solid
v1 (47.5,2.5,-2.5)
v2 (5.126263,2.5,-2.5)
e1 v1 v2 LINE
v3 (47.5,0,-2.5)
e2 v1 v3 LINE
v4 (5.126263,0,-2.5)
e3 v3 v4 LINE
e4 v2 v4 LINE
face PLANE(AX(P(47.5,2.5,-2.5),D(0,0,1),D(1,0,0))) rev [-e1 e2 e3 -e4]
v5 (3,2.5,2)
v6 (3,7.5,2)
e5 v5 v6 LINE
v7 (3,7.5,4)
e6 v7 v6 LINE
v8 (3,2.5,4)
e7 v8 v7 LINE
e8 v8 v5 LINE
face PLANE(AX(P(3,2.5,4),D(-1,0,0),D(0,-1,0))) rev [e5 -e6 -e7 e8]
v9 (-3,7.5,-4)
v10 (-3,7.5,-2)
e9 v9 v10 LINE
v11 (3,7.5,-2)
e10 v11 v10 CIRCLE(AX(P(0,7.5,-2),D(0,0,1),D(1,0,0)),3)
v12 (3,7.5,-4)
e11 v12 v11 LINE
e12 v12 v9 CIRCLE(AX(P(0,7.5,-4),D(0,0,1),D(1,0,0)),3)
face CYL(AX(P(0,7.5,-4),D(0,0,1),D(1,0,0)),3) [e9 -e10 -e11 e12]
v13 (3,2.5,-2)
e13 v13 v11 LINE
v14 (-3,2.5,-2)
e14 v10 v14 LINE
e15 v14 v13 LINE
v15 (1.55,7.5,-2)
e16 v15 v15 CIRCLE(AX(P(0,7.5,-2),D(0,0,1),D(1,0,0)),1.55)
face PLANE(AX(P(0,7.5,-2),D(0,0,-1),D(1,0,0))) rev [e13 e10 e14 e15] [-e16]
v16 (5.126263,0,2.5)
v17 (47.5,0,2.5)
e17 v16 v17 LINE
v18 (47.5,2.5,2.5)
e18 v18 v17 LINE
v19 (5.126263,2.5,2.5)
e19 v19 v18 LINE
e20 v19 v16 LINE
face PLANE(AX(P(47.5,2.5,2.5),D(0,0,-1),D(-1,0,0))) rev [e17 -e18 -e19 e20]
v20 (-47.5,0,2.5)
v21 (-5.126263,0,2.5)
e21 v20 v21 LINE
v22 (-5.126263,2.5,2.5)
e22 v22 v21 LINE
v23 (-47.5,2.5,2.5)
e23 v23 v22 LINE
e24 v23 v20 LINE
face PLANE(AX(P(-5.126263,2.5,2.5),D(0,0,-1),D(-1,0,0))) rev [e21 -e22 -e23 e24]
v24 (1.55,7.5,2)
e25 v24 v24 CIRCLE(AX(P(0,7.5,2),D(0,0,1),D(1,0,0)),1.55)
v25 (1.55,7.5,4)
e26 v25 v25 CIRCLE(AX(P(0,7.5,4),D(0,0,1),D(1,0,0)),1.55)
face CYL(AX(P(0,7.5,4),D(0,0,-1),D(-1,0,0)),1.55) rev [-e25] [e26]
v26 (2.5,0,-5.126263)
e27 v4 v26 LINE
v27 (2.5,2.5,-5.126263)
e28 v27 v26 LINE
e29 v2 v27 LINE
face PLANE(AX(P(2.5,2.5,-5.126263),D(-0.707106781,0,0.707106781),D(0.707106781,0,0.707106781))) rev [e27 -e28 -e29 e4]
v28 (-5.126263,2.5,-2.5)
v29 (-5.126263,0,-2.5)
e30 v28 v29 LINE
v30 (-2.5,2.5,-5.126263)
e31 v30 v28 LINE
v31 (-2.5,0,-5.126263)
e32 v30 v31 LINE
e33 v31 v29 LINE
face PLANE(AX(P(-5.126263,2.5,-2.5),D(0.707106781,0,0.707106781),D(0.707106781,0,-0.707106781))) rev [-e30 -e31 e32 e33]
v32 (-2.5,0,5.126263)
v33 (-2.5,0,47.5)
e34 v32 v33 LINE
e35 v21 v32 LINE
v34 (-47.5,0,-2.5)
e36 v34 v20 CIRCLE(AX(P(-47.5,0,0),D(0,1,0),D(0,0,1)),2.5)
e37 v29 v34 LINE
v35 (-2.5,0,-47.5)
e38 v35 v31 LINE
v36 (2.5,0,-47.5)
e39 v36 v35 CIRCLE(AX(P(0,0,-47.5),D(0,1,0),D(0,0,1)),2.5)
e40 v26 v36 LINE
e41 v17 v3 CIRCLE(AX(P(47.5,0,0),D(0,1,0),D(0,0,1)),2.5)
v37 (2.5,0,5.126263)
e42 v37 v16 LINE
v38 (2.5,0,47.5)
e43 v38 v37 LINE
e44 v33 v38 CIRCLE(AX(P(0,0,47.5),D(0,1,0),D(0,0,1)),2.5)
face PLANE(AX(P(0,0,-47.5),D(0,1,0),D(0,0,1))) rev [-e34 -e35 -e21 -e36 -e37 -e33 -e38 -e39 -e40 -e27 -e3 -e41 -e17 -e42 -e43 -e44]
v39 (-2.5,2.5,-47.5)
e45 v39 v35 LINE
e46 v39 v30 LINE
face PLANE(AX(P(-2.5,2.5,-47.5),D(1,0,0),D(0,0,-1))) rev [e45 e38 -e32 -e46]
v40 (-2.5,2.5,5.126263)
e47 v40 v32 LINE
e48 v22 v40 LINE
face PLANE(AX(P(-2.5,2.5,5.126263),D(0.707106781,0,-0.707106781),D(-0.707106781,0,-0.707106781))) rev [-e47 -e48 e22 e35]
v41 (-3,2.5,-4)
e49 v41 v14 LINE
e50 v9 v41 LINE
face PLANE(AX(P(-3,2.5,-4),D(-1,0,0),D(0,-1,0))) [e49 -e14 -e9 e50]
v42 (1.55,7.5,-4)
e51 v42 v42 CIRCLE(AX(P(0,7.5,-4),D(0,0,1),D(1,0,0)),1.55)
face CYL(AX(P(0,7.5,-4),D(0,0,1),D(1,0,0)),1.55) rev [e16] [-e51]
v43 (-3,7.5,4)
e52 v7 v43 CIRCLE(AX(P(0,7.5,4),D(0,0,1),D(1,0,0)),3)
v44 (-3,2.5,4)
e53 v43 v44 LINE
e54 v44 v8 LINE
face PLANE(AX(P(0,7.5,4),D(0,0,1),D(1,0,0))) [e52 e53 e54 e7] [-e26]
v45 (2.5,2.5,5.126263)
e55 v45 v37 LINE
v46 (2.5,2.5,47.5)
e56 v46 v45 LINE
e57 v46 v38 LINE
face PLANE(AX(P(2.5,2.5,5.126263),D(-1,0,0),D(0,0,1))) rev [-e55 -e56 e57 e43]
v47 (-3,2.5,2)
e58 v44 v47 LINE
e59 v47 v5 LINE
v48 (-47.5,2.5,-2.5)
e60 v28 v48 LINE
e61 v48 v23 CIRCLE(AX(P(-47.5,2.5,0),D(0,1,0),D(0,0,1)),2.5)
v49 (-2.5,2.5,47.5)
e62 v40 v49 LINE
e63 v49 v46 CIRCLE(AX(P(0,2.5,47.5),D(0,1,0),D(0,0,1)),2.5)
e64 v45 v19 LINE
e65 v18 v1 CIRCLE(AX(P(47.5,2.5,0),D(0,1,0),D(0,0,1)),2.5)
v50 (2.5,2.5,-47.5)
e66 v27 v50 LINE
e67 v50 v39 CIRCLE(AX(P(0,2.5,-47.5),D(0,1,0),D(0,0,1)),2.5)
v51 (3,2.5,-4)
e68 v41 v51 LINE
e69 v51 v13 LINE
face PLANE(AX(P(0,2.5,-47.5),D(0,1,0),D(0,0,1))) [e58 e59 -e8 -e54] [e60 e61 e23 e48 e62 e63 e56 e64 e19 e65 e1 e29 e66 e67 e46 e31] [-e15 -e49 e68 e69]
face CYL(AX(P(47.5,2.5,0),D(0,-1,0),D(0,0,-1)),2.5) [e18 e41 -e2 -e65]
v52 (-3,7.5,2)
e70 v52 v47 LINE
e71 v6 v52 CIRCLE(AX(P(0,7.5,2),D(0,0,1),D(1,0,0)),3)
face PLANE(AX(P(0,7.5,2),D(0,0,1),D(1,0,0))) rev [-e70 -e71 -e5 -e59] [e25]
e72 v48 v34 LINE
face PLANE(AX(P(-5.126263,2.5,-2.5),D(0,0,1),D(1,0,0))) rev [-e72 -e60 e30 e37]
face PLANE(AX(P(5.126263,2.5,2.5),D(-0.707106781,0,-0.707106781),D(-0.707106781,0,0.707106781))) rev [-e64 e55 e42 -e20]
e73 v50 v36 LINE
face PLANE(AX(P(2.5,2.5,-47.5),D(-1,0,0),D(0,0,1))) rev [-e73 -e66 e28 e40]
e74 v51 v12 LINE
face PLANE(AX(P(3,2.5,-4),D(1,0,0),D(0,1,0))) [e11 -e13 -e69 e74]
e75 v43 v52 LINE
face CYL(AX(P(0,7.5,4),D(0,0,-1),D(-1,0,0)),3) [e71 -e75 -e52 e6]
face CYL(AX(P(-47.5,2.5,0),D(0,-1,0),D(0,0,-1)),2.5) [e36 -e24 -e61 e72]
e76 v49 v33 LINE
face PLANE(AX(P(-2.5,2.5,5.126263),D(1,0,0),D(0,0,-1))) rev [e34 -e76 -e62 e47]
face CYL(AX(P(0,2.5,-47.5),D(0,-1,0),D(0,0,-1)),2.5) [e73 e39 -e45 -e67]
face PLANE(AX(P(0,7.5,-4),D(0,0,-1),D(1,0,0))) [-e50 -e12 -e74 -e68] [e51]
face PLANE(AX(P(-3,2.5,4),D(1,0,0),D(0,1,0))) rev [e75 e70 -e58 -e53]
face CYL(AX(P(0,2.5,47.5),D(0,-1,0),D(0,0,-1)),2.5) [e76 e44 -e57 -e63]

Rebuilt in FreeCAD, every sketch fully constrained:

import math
import FreeCAD as App
import Part
import Sketcher

doc = App.newDocument("Part")
body = doc.addObject("PartDesign::Body", "Body")

sketch1 = body.newObject("Sketcher::SketchObject", "Sketch")
sketch1.AttachmentSupport = (doc.getObject("XZ_Plane"), [""])
sketch1.MapMode = "FlatFace"
sketch1.addGeometry([
    Part.LineSegment(App.Vector(2.5, -5.1, 0), App.Vector(2.5, -47.5, 0)),
    Part.ArcOfCircle(Part.Circle(App.Vector(0, -47.5, 0), App.Vector(0, 0, 1), 2.5), math.radians(180), math.radians(360)),
    Part.LineSegment(App.Vector(-2.5, -47.5, 0), App.Vector(-2.5, -5.1, 0)),
    Part.LineSegment(App.Vector(-2.5, -5.1, 0), App.Vector(-5.1, -2.5, 0)),
    Part.LineSegment(App.Vector(-5.1, -2.5, 0), App.Vector(-47.5, -2.5, 0)),
    Part.ArcOfCircle(Part.Circle(App.Vector(-47.5, 0, 0), App.Vector(0, 0, 1), 2.5), math.radians(90), math.radians(270)),
    Part.LineSegment(App.Vector(-47.5, 2.5, 0), App.Vector(-5.1, 2.5, 0)),
    Part.LineSegment(App.Vector(-5.1, 2.5, 0), App.Vector(-2.5, 5.1, 0)),
    Part.LineSegment(App.Vector(-2.5, 5.1, 0), App.Vector(-2.5, 47.5, 0)),
    Part.ArcOfCircle(Part.Circle(App.Vector(0, 47.5, 0), App.Vector(0, 0, 1), 2.5), math.radians(0), math.radians(180)),
    Part.LineSegment(App.Vector(2.5, 47.5, 0), App.Vector(2.5, 5.1, 0)),
    Part.LineSegment(App.Vector(2.5, 5.1, 0), App.Vector(5.1, 2.5, 0)),
    Part.LineSegment(App.Vector(5.1, 2.5, 0), App.Vector(47.5, 2.5, 0)),
    Part.ArcOfCircle(Part.Circle(App.Vector(47.5, 0, 0), App.Vector(0, 0, 1), 2.5), math.radians(-90), math.radians(90)),
    Part.LineSegment(App.Vector(47.5, -2.5, 0), App.Vector(5.1, -2.5, 0)),
    Part.LineSegment(App.Vector(5.1, -2.5, 0), App.Vector(2.5, -5.1, 0)),
], False)
sketch1.addConstraint([
    Sketcher.Constraint("Tangent", 0, 2, 1, 2),
    Sketcher.Constraint("Tangent", 1, 1, 2, 1),
    Sketcher.Constraint("Coincident", 2, 2, 3, 1),
    Sketcher.Constraint("Coincident", 3, 2, 4, 1),
    Sketcher.Constraint("Tangent", 4, 2, 5, 2),
    Sketcher.Constraint("Tangent", 5, 1, 6, 1),
    Sketcher.Constraint("Coincident", 6, 2, 7, 1),
    Sketcher.Constraint("Coincident", 7, 2, 8, 1),
    Sketcher.Constraint("Tangent", 8, 2, 9, 2),
    Sketcher.Constraint("Tangent", 9, 1, 10, 1),
    Sketcher.Constraint("Coincident", 10, 2, 11, 1),
    Sketcher.Constraint("Coincident", 11, 2, 12, 1),
    Sketcher.Constraint("Tangent", 12, 2, 13, 2),
    Sketcher.Constraint("Tangent", 13, 1, 14, 1),
    Sketcher.Constraint("Coincident", 14, 2, 15, 1),
    Sketcher.Constraint("Coincident", 15, 2, 0, 1),
    Sketcher.Constraint("Vertical", 0),
    Sketcher.Constraint("Vertical", 2),
    Sketcher.Constraint("Horizontal", 4),
    Sketcher.Constraint("Horizontal", 6),
    Sketcher.Constraint("Vertical", 8),
    Sketcher.Constraint("Vertical", 10),
    Sketcher.Constraint("Horizontal", 12),
    Sketcher.Constraint("Horizontal", 14),
    Sketcher.Constraint("Equal", 1, 5),
    Sketcher.Constraint("Equal", 5, 9),
    Sketcher.Constraint("Equal", 9, 13),
    Sketcher.Constraint("Symmetric", 1, 3, 9, 3, -1, 1),
    Sketcher.Constraint("Symmetric", 5, 3, 13, 3, -1, 1),
    Sketcher.Constraint("Symmetric", 7, 2, 10, 2, -2),
    Sketcher.Constraint("Symmetric", 6, 2, 11, 2, -2),
    Sketcher.Constraint("Perpendicular", 3, 7),
    Sketcher.Constraint("Perpendicular", 7, 11),
    Sketcher.Constraint("Perpendicular", 11, 15),
    Sketcher.Constraint("Horizontal", 2, 2, 15, 2),
    Sketcher.Constraint("Vertical", 3, 2, 6, 2),
    Sketcher.Constraint("Equal", 14, 0),
    Sketcher.Constraint("Radius", 1, 2.5),
    Sketcher.Constraint("DistanceY", 1, 3, 9, 3, 95.0),
    Sketcher.Constraint("DistanceX", 4, 2, 4, 1, 42.373737),
])
pad1 = body.newObject("PartDesign::Pad", "Pad")
pad1.Profile = sketch1
pad1.Length = 2.5
pad1.Reversed = True

sketch2 = body.newObject("Sketcher::SketchObject", "Sketch001")
sketch2.AttachmentSupport = (doc.getObject("XY_Plane"), [""])
sketch2.MapMode = "FlatFace"
sketch2.AttachmentOffset = App.Placement(App.Vector(0, 0, 3), App.Rotation())
sketch2.addGeometry([
    Part.LineSegment(App.Vector(-3, 2.5, 0), App.Vector(3, 2.5, 0)),
    Part.LineSegment(App.Vector(3, 2.5, 0), App.Vector(3, 7.5, 0)),
    Part.ArcOfCircle(Part.Circle(App.Vector(0, 7.5, 0), App.Vector(0, 0, 1), 3), math.radians(0), math.radians(180)),
    Part.LineSegment(App.Vector(-3, 7.5, 0), App.Vector(-3, 2.5, 0)),
    Part.Circle(App.Vector(0, 7.5, 0), App.Vector(0, 0, 1), 1.6),
], False)
sketch2.addConstraint([
    Sketcher.Constraint("Coincident", 0, 2, 1, 1),
    Sketcher.Constraint("Tangent", 1, 2, 2, 1),
    Sketcher.Constraint("Tangent", 2, 2, 3, 1),
    Sketcher.Constraint("Coincident", 3, 2, 0, 1),
    Sketcher.Constraint("Horizontal", 0),
    Sketcher.Constraint("Vertical", 1),
    Sketcher.Constraint("Vertical", 3),
    Sketcher.Constraint("Coincident", 4, 3, 2, 3),
    Sketcher.Constraint("PointOnObject", 2, 3, -2),
    Sketcher.Constraint("Radius", 2, 3.0),
    Sketcher.Constraint("Diameter", 4, 3.1),
    Sketcher.Constraint("DistanceY", 1, 1, 1, 2, 5.0),
    Sketcher.Constraint("DistanceY", -1, 1, 2, 3, 7.5),
])
pad2 = body.newObject("PartDesign::Pad", "Pad001")
pad2.Profile = sketch2
pad2.Length = 2
pad2.Midplane = True
doc.recompute()

mirrored = body.newObject("PartDesign::Mirrored", "Mirrored")
mirrored.Originals = [pad2]
mirrored.MirrorPlane = (doc.getObject("XY_Plane"), [""])
body.Tip = mirrored

doc.recompute()
